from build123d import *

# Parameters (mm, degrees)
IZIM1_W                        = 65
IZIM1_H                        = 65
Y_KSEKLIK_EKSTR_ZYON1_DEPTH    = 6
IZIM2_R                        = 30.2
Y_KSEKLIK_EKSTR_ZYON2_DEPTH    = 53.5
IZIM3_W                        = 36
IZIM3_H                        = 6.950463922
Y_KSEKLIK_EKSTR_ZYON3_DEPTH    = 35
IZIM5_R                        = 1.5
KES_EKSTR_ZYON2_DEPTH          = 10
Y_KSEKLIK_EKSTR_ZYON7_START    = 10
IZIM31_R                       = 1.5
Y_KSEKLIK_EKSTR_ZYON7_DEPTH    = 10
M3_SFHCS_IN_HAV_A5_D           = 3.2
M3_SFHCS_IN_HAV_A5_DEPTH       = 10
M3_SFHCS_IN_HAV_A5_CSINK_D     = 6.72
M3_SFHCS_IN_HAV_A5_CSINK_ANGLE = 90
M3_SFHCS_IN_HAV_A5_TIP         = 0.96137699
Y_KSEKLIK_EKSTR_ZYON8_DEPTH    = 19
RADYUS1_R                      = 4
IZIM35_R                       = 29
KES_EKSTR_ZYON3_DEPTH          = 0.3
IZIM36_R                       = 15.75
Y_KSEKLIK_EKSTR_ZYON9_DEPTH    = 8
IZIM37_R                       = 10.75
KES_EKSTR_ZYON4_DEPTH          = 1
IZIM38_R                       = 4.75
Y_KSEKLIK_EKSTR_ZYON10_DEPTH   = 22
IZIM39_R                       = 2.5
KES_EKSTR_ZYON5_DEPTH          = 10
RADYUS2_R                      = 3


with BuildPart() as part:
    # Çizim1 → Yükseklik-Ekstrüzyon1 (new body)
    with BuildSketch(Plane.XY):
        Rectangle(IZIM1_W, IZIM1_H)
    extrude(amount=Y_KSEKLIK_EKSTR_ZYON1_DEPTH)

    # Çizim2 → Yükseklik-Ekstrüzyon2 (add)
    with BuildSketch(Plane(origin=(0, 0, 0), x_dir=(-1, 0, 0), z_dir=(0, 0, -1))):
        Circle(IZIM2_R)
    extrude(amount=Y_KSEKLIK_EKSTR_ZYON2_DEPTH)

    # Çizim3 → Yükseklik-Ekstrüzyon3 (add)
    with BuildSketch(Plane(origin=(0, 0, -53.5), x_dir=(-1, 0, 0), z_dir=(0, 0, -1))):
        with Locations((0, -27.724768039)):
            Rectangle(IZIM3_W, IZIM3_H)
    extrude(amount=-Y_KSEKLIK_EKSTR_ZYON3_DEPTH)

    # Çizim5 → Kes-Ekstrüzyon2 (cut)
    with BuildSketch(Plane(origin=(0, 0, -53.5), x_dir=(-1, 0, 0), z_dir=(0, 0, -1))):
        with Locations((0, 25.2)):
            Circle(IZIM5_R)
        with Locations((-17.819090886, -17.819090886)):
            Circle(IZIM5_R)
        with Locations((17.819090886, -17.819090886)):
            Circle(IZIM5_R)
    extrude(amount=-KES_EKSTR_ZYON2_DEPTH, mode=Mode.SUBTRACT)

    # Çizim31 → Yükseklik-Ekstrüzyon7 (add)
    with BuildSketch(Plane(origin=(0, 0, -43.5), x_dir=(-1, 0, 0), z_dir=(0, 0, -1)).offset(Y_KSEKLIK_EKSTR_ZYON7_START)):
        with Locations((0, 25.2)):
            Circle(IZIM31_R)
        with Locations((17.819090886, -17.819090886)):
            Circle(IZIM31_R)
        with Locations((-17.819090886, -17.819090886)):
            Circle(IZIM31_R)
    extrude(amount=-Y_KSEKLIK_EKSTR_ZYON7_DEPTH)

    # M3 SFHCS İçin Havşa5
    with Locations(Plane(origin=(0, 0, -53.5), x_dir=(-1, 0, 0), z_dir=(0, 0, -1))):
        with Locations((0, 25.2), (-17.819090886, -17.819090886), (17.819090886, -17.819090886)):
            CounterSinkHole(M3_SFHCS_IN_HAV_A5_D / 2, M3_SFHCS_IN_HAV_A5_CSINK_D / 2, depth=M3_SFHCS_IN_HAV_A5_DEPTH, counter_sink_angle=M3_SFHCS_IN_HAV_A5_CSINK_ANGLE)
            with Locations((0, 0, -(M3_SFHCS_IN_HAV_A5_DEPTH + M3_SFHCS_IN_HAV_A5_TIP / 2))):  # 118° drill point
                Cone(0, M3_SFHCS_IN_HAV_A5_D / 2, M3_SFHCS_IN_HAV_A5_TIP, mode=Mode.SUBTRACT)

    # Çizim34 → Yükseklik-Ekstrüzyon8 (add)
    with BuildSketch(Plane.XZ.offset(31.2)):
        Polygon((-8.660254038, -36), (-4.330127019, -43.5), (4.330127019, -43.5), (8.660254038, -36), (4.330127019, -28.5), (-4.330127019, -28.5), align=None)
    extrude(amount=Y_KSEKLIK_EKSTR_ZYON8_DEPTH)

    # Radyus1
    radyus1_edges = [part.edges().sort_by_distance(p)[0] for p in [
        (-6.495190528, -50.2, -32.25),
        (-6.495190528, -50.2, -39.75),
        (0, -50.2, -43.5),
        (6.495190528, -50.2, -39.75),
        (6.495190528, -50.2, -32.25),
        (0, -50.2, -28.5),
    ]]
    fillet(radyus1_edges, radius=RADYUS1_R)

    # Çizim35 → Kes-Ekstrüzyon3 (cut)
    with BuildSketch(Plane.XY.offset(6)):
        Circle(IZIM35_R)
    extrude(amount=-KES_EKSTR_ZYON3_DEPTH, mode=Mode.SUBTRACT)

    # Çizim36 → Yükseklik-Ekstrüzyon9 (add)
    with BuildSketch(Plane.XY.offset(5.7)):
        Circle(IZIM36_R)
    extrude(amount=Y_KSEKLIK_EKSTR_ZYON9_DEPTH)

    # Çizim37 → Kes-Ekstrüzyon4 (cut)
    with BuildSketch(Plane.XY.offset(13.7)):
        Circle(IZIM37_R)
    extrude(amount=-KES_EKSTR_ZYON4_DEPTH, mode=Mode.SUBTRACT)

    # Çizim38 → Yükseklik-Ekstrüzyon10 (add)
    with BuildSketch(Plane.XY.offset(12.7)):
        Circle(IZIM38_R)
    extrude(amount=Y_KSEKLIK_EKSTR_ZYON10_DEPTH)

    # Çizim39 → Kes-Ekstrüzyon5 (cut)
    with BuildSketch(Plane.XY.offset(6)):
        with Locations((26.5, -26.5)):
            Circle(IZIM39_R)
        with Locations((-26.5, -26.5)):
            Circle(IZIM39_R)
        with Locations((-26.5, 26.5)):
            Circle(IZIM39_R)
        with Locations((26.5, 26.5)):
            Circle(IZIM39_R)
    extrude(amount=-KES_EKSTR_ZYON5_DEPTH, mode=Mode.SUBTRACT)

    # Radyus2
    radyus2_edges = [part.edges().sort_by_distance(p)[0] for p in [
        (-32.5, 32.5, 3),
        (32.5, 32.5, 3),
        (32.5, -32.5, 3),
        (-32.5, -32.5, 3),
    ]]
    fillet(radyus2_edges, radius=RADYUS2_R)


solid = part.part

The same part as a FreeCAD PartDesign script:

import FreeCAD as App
import Part
import Sketcher
from FreeCAD import Vector
Q = App.Units.Quantity


def edges_at(feature, points):
    """Names of the edges that pass closest to the given points."""
    edges = feature.Shape.Edges
    near = lambda p: min(range(len(edges)), key=lambda i: edges[i].distToShape(Part.Vertex(*p))[0])
    return sorted({f"Edge{near(p) + 1}" for p in points})

doc = App.newDocument("Part")
body = doc.addObject("PartDesign::Body", "Body")

# Sketch on XY plane
sketch1 = body.newObject("Sketcher::SketchObject", "Sketch")
sketch1.AttachmentSupport = (doc.getObject("XY_Plane"), [""])
sketch1.MapMode = "FlatFace"
sketch1.addGeometry([
    Part.LineSegment(Vector(-32.5, 32.5, 0), Vector(-32.5, -32.5, 0)),
    Part.LineSegment(Vector(-32.5, -32.5, 0), Vector(32.5, -32.5, 0)),
    Part.LineSegment(Vector(32.5, -32.5, 0), Vector(32.5, 32.5, 0)),
    Part.LineSegment(Vector(32.5, 32.5, 0), Vector(-32.5, 32.5, 0)),
], False)
sketch1.addConstraint([
    Sketcher.Constraint("Coincident", 0, 2, 1, 1),
    Sketcher.Constraint("Coincident", 1, 2, 2, 1),
    Sketcher.Constraint("Coincident", 2, 2, 3, 1),
    Sketcher.Constraint("Coincident", 3, 2, 0, 1),
    Sketcher.Constraint("Vertical", 0),
    Sketcher.Constraint("Horizontal", 1),
    Sketcher.Constraint("Vertical", 2),
    Sketcher.Constraint("Horizontal", 3),
    Sketcher.Constraint("Symmetric", 0, 2, 2, 2, -1, 1),
    Sketcher.Constraint("Equal", 3, 0),
    Sketcher.Constraint("DistanceX", 1, 1, 1, 2, 65.0),
])
pad1 = body.newObject("PartDesign::Pad", "Pad")
pad1.Profile = sketch1
pad1.Length = 6

# Sketch on XY plane
sketch2 = body.newObject("Sketcher::SketchObject", "Sketch001")
sketch2.AttachmentSupport = (doc.getObject("XY_Plane"), [""])
sketch2.MapMode = "FlatFace"
sketch2.addGeometry(Part.Circle(Vector(0, 0, 0), Vector(0, 0, 1), 30.2), False)
sketch2.addConstraint([
    Sketcher.Constraint("Coincident", 0, 3, -1, 1),
    Sketcher.Constraint("Diameter", 0, 60.4),
])
pad2 = body.newObject("PartDesign::Pad", "Pad001")
pad2.Profile = sketch2
pad2.Length = 53.5
pad2.Reversed = True

# Sketch on XY plane
sketch3 = body.newObject("Sketcher::SketchObject", "Sketch002")
sketch3.AttachmentSupport = (doc.getObject("XY_Plane"), [""])
sketch3.MapMode = "FlatFace"
sketch3.AttachmentOffset = App.Placement(Vector(0, 0, -53.5), App.Rotation())
sketch3.addGeometry([
    Part.LineSegment(Vector(18, -24.249536, 0), Vector(18, -31.2, 0)),
    Part.LineSegment(Vector(18, -31.2, 0), Vector(-18, -31.2, 0)),
    Part.LineSegment(Vector(-18, -31.2, 0), Vector(-18, -24.249536, 0)),
    Part.LineSegment(Vector(-18, -24.249536, 0), Vector(18, -24.249536, 0)),
], False)
sketch3.addConstraint([
    Sketcher.Constraint("Coincident", 0, 2, 1, 1),
    Sketcher.Constraint("Coincident", 1, 2, 2, 1),
    Sketcher.Constraint("Coincident", 2, 2, 3, 1),
    Sketcher.Constraint("Coincident", 3, 2, 0, 1),
    Sketcher.Constraint("Vertical", 0),
    Sketcher.Constraint("Horizontal", 1),
    Sketcher.Constraint("Vertical", 2),
    Sketcher.Constraint("Horizontal", 3),
    Sketcher.Constraint("DistanceX", 1, 2, 1, 1, 36.0),
    Sketcher.Constraint("DistanceX", -1, 1, 0, 2, 18.0),
    Sketcher.Constraint("DistanceY", 0, 2, -1, 1, 31.2),
    Sketcher.Constraint("DistanceY", 0, 2, 0, 1, 6.950464),
])
pad3 = body.newObject("PartDesign::Pad", "Pad002")
pad3.Profile = sketch3
pad3.Length = 35

# Sketch on XY plane
sketch4 = body.newObject("Sketcher::SketchObject", "Sketch003")
sketch4.AttachmentSupport = (doc.getObject("XY_Plane"), [""])
sketch4.MapMode = "FlatFace"
sketch4.AttachmentOffset = App.Placement(Vector(0, 0, -53.5), App.Rotation())
sketch4.addGeometry([
    Part.Circle(Vector(0, 25.2, 0), Vector(0, 0, 1), 1.5),
    Part.Circle(Vector(17.819091, -17.819091, 0), Vector(0, 0, 1), 1.5),
    Part.Circle(Vector(-17.819091, -17.819091, 0), Vector(0, 0, 1), 1.5),
], False)
sketch4.addConstraint([
    Sketcher.Constraint("Equal", 0, 1),
    Sketcher.Constraint("Equal", 1, 2),
    Sketcher.Constraint("Symmetric", 1, 3, 2, 3, -2),
    Sketcher.Constraint("PointOnObject", 0, 3, -2),
    Sketcher.Constraint("Diameter", 0, 3.0),
    Sketcher.Constraint("DistanceY", -1, 1, 0, 3, 25.2),
    Sketcher.Constraint("DistanceX", -1, 1, 1, 3, 17.819091),
    Sketcher.Constraint("DistanceY", 1, 3, -1, 1, 17.819091),
])
pocket1 = body.newObject("PartDesign::Pocket", "Pocket")
pocket1.Profile = sketch4
pocket1.Length = 10
pocket1.Reversed = True

# Sketch on XY plane
sketch5 = body.newObject("Sketcher::SketchObject", "Sketch004")
sketch5.AttachmentSupport = (doc.getObject("XY_Plane"), [""])
sketch5.MapMode = "FlatFace"
sketch5.AttachmentOffset = App.Placement(Vector(0, 0, -53.5), App.Rotation())
sketch5.addGeometry([
    Part.Circle(Vector(0, 25.2, 0), Vector(0, 0, 1), 1.5),
    Part.Circle(Vector(-17.819091, -17.819091, 0), Vector(0, 0, 1), 1.5),
    Part.Circle(Vector(17.819091, -17.819091, 0), Vector(0, 0, 1), 1.5),
], False)
sketch5.addConstraint([
    Sketcher.Constraint("Equal", 0, 1),
    Sketcher.Constraint("Equal", 1, 2),
    Sketcher.Constraint("Symmetric", 1, 3, 2, 3, -2),
    Sketcher.Constraint("PointOnObject", 0, 3, -2),
    Sketcher.Constraint("Diameter", 0, 3.0),
    Sketcher.Constraint("DistanceY", -1, 1, 0, 3, 25.2),
    Sketcher.Constraint("DistanceX", 1, 3, -1, 1, 17.819091),
    Sketcher.Constraint("DistanceY", 1, 3, -1, 1, 17.819091),
])
pad4 = body.newObject("PartDesign::Pad", "Pad003")
pad4.Profile = sketch5
pad4.Length = 10

# Sketch on XY plane
sketch6 = body.newObject("Sketcher::SketchObject", "Sketch005")
sketch6.AttachmentSupport = (doc.getObject("XY_Plane"), [""])
sketch6.MapMode = "FlatFace"
sketch6.AttachmentOffset = App.Placement(Vector(0, 0, -53.5), App.Rotation())
sketch6.addGeometry([
    Part.Circle(Vector(0, 25.2, 0), Vector(0, 0, 1), 1.6),
    Part.Circle(Vector(17.819091, -17.819091, 0), Vector(0, 0, 1), 1.6),
    Part.Circle(Vector(-17.819091, -17.819091, 0), Vector(0, 0, 1), 1.6),
], False)
sketch6.addConstraint([
    Sketcher.Constraint("Equal", 0, 1),
    Sketcher.Constraint("Equal", 1, 2),
    Sketcher.Constraint("Symmetric", 1, 3, 2, 3, -2),
    Sketcher.Constraint("PointOnObject", 0, 3, -2),
    Sketcher.Constraint("Diameter", 0, 3.2),
    Sketcher.Constraint("DistanceY", -1, 1, 0, 3, 25.2),
    Sketcher.Constraint("DistanceX", -1, 1, 1, 3, 17.819091),
    Sketcher.Constraint("DistanceY", 1, 3, -1, 1, 17.819091),
])
doc.recompute()
hole = body.newObject("PartDesign::Hole", "Hole")
hole.Profile = sketch6
hole.ThreadType = "None"
hole.Diameter = 3.2
hole.DepthType = "Dimension"
hole.Depth = 10
hole.DrillPoint = "Angled"
hole.DrillPointAngle = 118
hole.HoleCutType = "Countersink"
hole.HoleCutDiameter = 6.72
hole.HoleCutCountersinkAngle = 90
hole.Reversed = True

# Sketch on XZ plane
sketch7 = body.newObject("Sketcher::SketchObject", "Sketch006")
sketch7.AttachmentSupport = (doc.getObject("XZ_Plane"), [""])
sketch7.MapMode = "FlatFace"
sketch7.AttachmentOffset = App.Placement(Vector(0, 0, 31.2), App.Rotation())
sketch7.addGeometry([
    Part.LineSegment(Vector(-8.660254, -36, 0), Vector(-4.330127, -43.5, 0)),  # 0
    Part.LineSegment(Vector(-4.330127, -43.5, 0), Vector(4.330127, -43.5, 0)),  # 1
    Part.LineSegment(Vector(4.330127, -43.5, 0), Vector(8.660254, -36, 0)),  # 2
    Part.LineSegment(Vector(8.660254, -36, 0), Vector(4.330127, -28.5, 0)),  # 3
    Part.LineSegment(Vector(4.330127, -28.5, 0), Vector(-4.330127, -28.5, 0)),  # 4
    Part.LineSegment(Vector(-4.330127, -28.5, 0), Vector(-8.660254, -36, 0)),  # 5
], False)
sketch7.addConstraint([
    Sketcher.Constraint("Coincident", 0, 2, 1, 1),
    Sketcher.Constraint("Coincident", 1, 2, 2, 1),
    Sketcher.Constraint("Coincident", 2, 2, 3, 1),
    Sketcher.Constraint("Coincident", 3, 2, 4, 1),
    Sketcher.Constraint("Coincident", 4, 2, 5, 1),
    Sketcher.Constraint("Coincident", 5, 2, 0, 1),
    Sketcher.Constraint("Horizontal", 1),
    Sketcher.Constraint("Horizontal", 4),
    Sketcher.Constraint("Symmetric", 2, 2, 5, 2, -2),
    Sketcher.Constraint("Parallel", 0, 3),
    Sketcher.Constraint("Parallel", 2, 5),
    Sketcher.Constraint("Vertical", 1, 2, 3, 2),
    Sketcher.Constraint("Vertical", 0, 2, 4, 2),
    Sketcher.Constraint("Angle", 0, Q("-60 deg")),
    Sketcher.Constraint("DistanceY", 2, 2, -1, 1, 36.0),
    Sketcher.Constraint("DistanceY", 1, 2, 3, 2, 15.0),
    Sketcher.Constraint("DistanceX", 1, 1, 1, 2, 8.660254),
])
pad5 = body.newObject("PartDesign::Pad", "Pad004")
pad5.Profile = sketch7
pad5.Length = 19
doc.recompute()

fillet = body.newObject("PartDesign::Fillet", "Fillet")
fillet.Base = (pad5, edges_at(pad5, [
    (-6.495, -50.2, -32.25),
    (-6.495, -50.2, -39.75),
    (0, -50.2, -43.5),
    (6.495, -50.2, -39.75),
    (6.495, -50.2, -32.25),
    (0, -50.2, -28.5),
]))
fillet.Radius = 4

# Sketch on XY plane
sketch8 = body.newObject("Sketcher::SketchObject", "Sketch007")
sketch8.AttachmentSupport = (doc.getObject("XY_Plane"), [""])
sketch8.MapMode = "FlatFace"
sketch8.AttachmentOffset = App.Placement(Vector(0, 0, 6), App.Rotation())
sketch8.addGeometry(Part.Circle(Vector(0, 0, 0), Vector(0, 0, 1), 29), False)
sketch8.addConstraint([
    Sketcher.Constraint("Coincident", 0, 3, -1, 1),
    Sketcher.Constraint("Diameter", 0, 58.0),
])
pocket2 = body.newObject("PartDesign::Pocket", "Pocket001")
pocket2.Profile = sketch8
pocket2.Length = 0.3

# Sketch on XY plane
sketch9 = body.newObject("Sketcher::SketchObject", "Sketch008")
sketch9.AttachmentSupport = (doc.getObject("XY_Plane"), [""])
sketch9.MapMode = "FlatFace"
sketch9.AttachmentOffset = App.Placement(Vector(0, 0, 5.7), App.Rotation())
sketch9.addGeometry(Part.Circle(Vector(0, 0, 0), Vector(0, 0, 1), 15.75), False)
sketch9.addConstraint([
    Sketcher.Constraint("Coincident", 0, 3, -1, 1),
    Sketcher.Constraint("Diameter", 0, 31.5),
])
pad6 = body.newObject("PartDesign::Pad", "Pad005")
pad6.Profile = sketch9
pad6.Length = 8

# Sketch on XY plane
sketch10 = body.newObject("Sketcher::SketchObject", "Sketch009")
sketch10.AttachmentSupport = (doc.getObject("XY_Plane"), [""])
sketch10.MapMode = "FlatFace"
sketch10.AttachmentOffset = App.Placement(Vector(0, 0, 13.7), App.Rotation())
sketch10.addGeometry(Part.Circle(Vector(0, 0, 0), Vector(0, 0, 1), 10.75), False)
sketch10.addConstraint([
    Sketcher.Constraint("Coincident", 0, 3, -1, 1),
    Sketcher.Constraint("Diameter", 0, 21.5),
])
pocket3 = body.newObject("PartDesign::Pocket", "Pocket002")
pocket3.Profile = sketch10
pocket3.Length = 1

# Sketch on XY plane
sketch11 = body.newObject("Sketcher::SketchObject", "Sketch010")
sketch11.AttachmentSupport = (doc.getObject("XY_Plane"), [""])
sketch11.MapMode = "FlatFace"
sketch11.AttachmentOffset = App.Placement(Vector(0, 0, 12.7), App.Rotation())
sketch11.addGeometry(Part.Circle(Vector(0, 0, 0), Vector(0, 0, 1), 4.75), False)
sketch11.addConstraint([
    Sketcher.Constraint("Coincident", 0, 3, -1, 1),
    Sketcher.Constraint("Diameter", 0, 9.5),
])
pad7 = body.newObject("PartDesign::Pad", "Pad006")
pad7.Profile = sketch11
pad7.Length = 22

# Sketch on XY plane
sketch12 = body.newObject("Sketcher::SketchObject", "Sketch011")
sketch12.AttachmentSupport = (doc.getObject("XY_Plane"), [""])
sketch12.MapMode = "FlatFace"
sketch12.AttachmentOffset = App.Placement(Vector(0, 0, 6), App.Rotation())
sketch12.addGeometry([
    Part.Circle(Vector(26.5, -26.5, 0), Vector(0, 0, 1), 2.5),
    Part.Circle(Vector(-26.5, -26.5, 0), Vector(0, 0, 1), 2.5),
    Part.Circle(Vector(-26.5, 26.5, 0), Vector(0, 0, 1), 2.5),
    Part.Circle(Vector(26.5, 26.5, 0), Vector(0, 0, 1), 2.5),
], False)
sketch12.addConstraint([
    Sketcher.Constraint("Equal", 0, 1),
    Sketcher.Constraint("Equal", 1, 2),
    Sketcher.Constraint("Equal", 2, 3),
    Sketcher.Constraint("Symmetric", 0, 3, 2, 3, -1, 1),
    Sketcher.Constraint("Symmetric", 1, 3, 3, 3, -1, 1),
    Sketcher.Constraint("Symmetric", 0, 3, 1, 3, -2),
    Sketcher.Constraint("Diameter", 0, 5.0),
    Sketcher.Constraint("DistanceX", 1, 3, 0, 3, 53.0),
    Sketcher.Constraint("DistanceY", 1, 3, 2, 3, 53.0),
])
pocket4 = body.newObject("PartDesign::Pocket", "Pocket003")
pocket4.Profile = sketch12
pocket4.Length = 10
doc.recompute()

fillet2 = body.newObject("PartDesign::Fillet", "Fillet001")
fillet2.Base = (pocket4, edges_at(pocket4, [
    (-32.5, 32.5, 3),
    (32.5, 32.5, 3),
    (32.5, -32.5, 3),
    (-32.5, -32.5, 3),
]))
fillet2.Radius = 3

doc.recompute()
